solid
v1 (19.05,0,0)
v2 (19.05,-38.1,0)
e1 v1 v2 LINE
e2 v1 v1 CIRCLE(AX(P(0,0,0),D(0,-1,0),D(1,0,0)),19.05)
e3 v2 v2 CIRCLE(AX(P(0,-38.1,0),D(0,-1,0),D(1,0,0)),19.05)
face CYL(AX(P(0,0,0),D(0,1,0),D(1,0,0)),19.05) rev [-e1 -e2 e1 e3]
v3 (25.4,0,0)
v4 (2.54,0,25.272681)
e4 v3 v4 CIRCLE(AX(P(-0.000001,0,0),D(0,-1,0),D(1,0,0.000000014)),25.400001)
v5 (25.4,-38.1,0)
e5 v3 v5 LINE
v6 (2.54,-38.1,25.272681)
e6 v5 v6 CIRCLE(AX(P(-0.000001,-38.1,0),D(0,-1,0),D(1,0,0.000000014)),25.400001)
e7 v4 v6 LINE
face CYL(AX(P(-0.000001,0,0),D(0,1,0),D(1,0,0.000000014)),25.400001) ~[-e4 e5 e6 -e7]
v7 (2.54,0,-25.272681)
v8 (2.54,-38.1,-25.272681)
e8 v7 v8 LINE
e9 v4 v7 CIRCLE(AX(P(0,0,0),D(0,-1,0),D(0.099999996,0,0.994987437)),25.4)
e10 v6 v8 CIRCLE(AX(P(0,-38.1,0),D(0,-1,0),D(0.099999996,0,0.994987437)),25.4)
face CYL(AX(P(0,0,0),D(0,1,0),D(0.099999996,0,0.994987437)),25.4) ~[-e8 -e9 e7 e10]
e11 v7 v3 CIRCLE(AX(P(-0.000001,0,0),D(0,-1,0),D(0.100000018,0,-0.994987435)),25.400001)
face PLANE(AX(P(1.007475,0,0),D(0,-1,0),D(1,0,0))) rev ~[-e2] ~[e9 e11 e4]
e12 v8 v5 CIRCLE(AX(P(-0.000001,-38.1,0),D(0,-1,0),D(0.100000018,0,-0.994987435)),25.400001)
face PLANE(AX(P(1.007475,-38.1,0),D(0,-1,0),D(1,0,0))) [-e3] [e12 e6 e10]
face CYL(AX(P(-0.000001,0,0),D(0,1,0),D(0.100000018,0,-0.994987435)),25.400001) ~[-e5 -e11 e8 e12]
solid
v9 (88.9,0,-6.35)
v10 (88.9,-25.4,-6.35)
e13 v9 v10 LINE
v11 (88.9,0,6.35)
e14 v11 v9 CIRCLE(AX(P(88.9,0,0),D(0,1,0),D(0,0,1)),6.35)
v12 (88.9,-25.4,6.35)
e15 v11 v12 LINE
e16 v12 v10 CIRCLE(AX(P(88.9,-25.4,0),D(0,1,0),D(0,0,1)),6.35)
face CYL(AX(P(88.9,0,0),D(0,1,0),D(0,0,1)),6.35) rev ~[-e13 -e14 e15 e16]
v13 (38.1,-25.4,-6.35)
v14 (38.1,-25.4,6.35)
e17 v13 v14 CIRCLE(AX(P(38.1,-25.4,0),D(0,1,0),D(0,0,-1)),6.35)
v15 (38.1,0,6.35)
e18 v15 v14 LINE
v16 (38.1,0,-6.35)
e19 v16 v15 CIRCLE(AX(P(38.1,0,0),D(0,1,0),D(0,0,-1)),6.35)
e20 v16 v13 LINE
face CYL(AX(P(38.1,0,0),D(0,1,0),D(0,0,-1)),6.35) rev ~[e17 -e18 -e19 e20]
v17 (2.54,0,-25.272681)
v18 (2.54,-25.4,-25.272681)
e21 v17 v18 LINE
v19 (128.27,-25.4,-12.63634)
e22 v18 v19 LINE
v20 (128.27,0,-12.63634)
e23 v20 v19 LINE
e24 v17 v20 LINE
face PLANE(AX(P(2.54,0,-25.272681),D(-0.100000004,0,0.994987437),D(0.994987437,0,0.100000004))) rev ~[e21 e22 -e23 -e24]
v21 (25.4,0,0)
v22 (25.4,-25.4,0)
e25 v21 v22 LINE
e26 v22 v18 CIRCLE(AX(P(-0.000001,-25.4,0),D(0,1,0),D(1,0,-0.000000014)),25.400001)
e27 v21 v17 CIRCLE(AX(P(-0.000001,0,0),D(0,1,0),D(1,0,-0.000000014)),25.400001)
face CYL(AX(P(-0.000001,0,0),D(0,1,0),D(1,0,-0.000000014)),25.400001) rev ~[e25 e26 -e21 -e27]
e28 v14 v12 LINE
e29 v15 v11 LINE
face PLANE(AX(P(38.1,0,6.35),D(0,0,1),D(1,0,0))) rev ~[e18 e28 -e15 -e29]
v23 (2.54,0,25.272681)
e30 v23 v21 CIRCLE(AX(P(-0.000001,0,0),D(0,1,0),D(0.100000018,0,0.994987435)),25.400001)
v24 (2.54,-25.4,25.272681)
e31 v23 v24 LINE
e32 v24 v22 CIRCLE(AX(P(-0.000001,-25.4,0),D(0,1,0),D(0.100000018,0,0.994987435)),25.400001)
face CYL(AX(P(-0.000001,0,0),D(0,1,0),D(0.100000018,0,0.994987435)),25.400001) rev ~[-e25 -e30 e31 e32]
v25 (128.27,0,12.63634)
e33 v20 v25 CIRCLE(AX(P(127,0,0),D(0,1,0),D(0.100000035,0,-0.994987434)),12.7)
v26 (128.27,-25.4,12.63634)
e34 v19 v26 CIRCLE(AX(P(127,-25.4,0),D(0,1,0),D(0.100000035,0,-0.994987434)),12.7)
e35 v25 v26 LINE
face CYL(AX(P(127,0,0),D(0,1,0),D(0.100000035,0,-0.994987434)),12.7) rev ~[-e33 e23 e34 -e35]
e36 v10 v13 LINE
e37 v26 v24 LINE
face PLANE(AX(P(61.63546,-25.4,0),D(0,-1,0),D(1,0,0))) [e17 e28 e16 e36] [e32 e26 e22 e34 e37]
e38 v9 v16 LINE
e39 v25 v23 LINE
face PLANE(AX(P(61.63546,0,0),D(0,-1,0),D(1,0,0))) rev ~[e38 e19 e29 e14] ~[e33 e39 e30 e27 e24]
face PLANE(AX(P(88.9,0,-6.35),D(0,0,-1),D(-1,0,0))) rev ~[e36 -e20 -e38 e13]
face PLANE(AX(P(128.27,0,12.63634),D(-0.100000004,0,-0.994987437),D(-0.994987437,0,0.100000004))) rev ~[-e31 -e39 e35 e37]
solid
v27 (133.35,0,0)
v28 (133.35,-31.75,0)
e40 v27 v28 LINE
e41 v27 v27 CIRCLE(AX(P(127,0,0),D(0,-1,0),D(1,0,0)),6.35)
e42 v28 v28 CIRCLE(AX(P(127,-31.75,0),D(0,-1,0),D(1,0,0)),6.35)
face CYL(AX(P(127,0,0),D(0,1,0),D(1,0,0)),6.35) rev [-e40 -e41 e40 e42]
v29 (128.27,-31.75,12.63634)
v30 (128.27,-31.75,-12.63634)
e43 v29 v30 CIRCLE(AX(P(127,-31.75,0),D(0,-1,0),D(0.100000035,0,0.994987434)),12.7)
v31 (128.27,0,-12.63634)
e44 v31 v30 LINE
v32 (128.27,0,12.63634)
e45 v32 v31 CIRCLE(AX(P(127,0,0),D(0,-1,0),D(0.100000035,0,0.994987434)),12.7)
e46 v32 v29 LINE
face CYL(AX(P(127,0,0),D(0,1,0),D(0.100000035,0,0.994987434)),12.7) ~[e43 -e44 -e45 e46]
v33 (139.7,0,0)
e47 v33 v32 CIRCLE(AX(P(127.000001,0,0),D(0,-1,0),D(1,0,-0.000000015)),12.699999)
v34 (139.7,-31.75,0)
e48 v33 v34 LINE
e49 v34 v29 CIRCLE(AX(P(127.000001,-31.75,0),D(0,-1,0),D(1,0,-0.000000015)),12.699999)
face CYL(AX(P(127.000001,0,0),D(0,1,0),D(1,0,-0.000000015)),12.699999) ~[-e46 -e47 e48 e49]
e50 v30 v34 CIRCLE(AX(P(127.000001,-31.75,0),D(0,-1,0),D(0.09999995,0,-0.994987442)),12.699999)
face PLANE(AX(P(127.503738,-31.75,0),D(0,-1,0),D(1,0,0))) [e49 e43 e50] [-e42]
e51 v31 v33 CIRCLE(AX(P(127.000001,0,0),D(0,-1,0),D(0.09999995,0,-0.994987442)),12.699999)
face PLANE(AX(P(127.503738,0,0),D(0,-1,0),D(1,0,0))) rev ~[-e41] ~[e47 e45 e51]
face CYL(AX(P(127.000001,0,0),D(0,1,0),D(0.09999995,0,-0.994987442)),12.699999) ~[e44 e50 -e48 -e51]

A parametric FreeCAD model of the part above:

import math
import FreeCAD as App
import Part
import Sketcher
from FreeCAD import Vector
Q = App.Units.Quantity

doc = App.newDocument("Part")
params = doc.addObject("Spreadsheet::Sheet", "Params")
for row, (alias, value) in enumerate([
    ("sketch1_radius", "1 in"),
    ("sketch1_diameter", "1.5 in"),
    ("pad1_length", "1.5 in"),
    ("sketch2_radius", "1 in"),
    ("sketch2_radius2", "0.5 in"),
    ("sketch2_width", "2 in"),
    ("sketch2_radius3", "0.25 in"),
    ("pad2_length", "1 in"),
    ("sketch3_diameter", "0.5 in"),
    ("sketch3_radius", "0.5 in"),
    ("pad3_length", "1.25 in"),
], start=1):
    params.set(f"A{row}", alias)
    params.set(f"B{row}", "=" + value)
    params.setAlias(f"B{row}", alias)

body = doc.addObject("PartDesign::Body", "Body")

# Sketch on XZ plane
sketch1 = doc.addObject("Sketcher::SketchObject", "Sketch")
body.addObject(sketch1)
sketch1.AttachmentSupport = (doc.XZ_Plane, [""])
sketch1.MapMode = "FlatFace"
sketch1.addGeometry([
    Part.ArcOfCircle(Part.Circle(Vector(0, 0, 0), Vector(0, 0, 1), 25), math.radians(-84), math.radians(0)),
    Part.ArcOfCircle(Part.Circle(Vector(0, 0, 0), Vector(0, 0, 1), 25), math.radians(0), math.radians(84)),
    Part.ArcOfCircle(Part.Circle(Vector(0, 0, 0), Vector(0, 0, 1), 25), math.radians(84), math.radians(276)),
    Part.Circle(Vector(0, 0, 0), Vector(0, 0, 1), 19),
], False)
sketch1.addConstraint([
    Sketcher.Constraint("Tangent", 0, 2, 1, 1),
    Sketcher.Constraint("Tangent", 1, 2, 2, 1),
    Sketcher.Constraint("Tangent", 2, 2, 0, 1),
    Sketcher.Constraint("Coincident", 0, 3, -1, 1),
    Sketcher.Constraint("Coincident", 3, 3, -1, 1),
    Sketcher.Constraint("PointOnObject", 0, 2, -1),
    Sketcher.Constraint("Vertical", 1, 2, 2, 2),
    Sketcher.Constraint("Radius", 0, Q("1 in")),
    Sketcher.Constraint("Diameter", 3, Q("1.5 in")),
    Sketcher.Constraint("DistanceX", -1, 1, 1, 2, Q("0.1 in")),
])
sketch1.setExpression("Constraints[7]", "Params.sketch1_radius")
sketch1.setExpression("Constraints[8]", "Params.sketch1_diameter")
pad1 = doc.addObject("PartDesign::Pad", "Pad")
body.addObject(pad1)
pad1.Profile = sketch1
pad1.setExpression("Length", "Params.pad1_length")
body2 = doc.addObject("PartDesign::Body", "Body001")

# Sketch on XZ plane
sketch2 = doc.addObject("Sketcher::SketchObject", "Sketch001")
body2.addObject(sketch2)
sketch2.AttachmentSupport = (doc.getObject("XZ_Plane001"), [""])
sketch2.MapMode = "FlatFace"
sketch2.addGeometry([
    Part.ArcOfCircle(Part.Circle(Vector(0, 0, 0), Vector(0, 0, 1), 25), math.radians(0), math.radians(84)),  # 0
    Part.ArcOfCircle(Part.Circle(Vector(0, 0, 0), Vector(0, 0, 1), 25), math.radians(-84), math.radians(0)),  # 1
    Part.LineSegment(Vector(3, -25, 0), Vector(128, -13, 0)),  # 2
    Part.ArcOfCircle(Part.Circle(Vector(127, 0, 0), Vector(0, 0, 1), 13), math.radians(84), math.radians(276)),  # 3
    Part.LineSegment(Vector(128, 13, 0), Vector(3, 25, 0)),  # 4
    Part.LineSegment(Vector(38, 6, 0), Vector(89, 6, 0)),  # 5
    Part.ArcOfCircle(Part.Circle(Vector(89, 0, 0), Vector(0, 0, 1), 6), math.radians(-90), math.radians(90)),  # 6
    Part.LineSegment(Vector(89, -6, 0), Vector(38, -6, 0)),  # 7
    Part.ArcOfCircle(Part.Circle(Vector(38, 0, 0), Vector(0, 0, 1), 6), math.radians(90), math.radians(270)),  # 8
], False)
sketch2.addConstraint([
    Sketcher.Constraint("Tangent", 0, 1, 1, 2),
    Sketcher.Constraint("Tangent", 1, 1, 2, 1),
    Sketcher.Constraint("Tangent", 2, 2, 3, 2),
    Sketcher.Constraint("Tangent", 3, 1, 4, 1),
    Sketcher.Constraint("Tangent", 4, 2, 0, 2),
    Sketcher.Constraint("Tangent", 5, 2, 6, 2),
    Sketcher.Constraint("Tangent", 6, 1, 7, 1),
    Sketcher.Constraint("Tangent", 7, 2, 8, 2),
    Sketcher.Constraint("Tangent", 8, 1, 5, 1),
    Sketcher.Constraint("Horizontal", 5),
    Sketcher.Constraint("Horizontal", 7),
    Sketcher.Constraint("Coincident", 0, 3, -1, 1),
    Sketcher.Constraint("Equal", 0, 1),
    Sketcher.Constraint("PointOnObject", 3, 3, -1),
    Sketcher.Constraint("PointOnObject", 6, 3, -1),
    Sketcher.Constraint("PointOnObject", 0, 1, -1),
    Sketcher.Constraint("Radius", 0, Q("1 in")),
    Sketcher.Constraint("Radius", 3, Q("0.5 in")),
    Sketcher.Constraint("DistanceX", 5, 1, 5, 2, Q("2 in")),
    Sketcher.Constraint("Radius", 6, Q("0.25 in")),
    Sketcher.Constraint("DistanceX", -1, 1, 3, 3, Q("5 in")),
    Sketcher.Constraint("DistanceX", -1, 1, 6, 3, Q("3.5 in")),
])
sketch2.setExpression("Constraints[16]", "Params.sketch2_radius")
sketch2.setExpression("Constraints[17]", "Params.sketch2_radius2")
sketch2.setExpression("Constraints[18]", "Params.sketch2_width")
sketch2.setExpression("Constraints[19]", "Params.sketch2_radius3")
pad2 = doc.addObject("PartDesign::Pad", "Pad001")
body2.addObject(pad2)
pad2.Profile = sketch2
pad2.setExpression("Length", "Params.pad2_length")
body3 = doc.addObject("PartDesign::Body", "Body002")

# Sketch on XZ plane
sketch3 = doc.addObject("Sketcher::SketchObject", "Sketch002")
body3.addObject(sketch3)
sketch3.AttachmentSupport = (doc.getObject("XZ_Plane002"), [""])
sketch3.MapMode = "FlatFace"
sketch3.addGeometry([
    Part.ArcOfCircle(Part.Circle(Vector(127, 0, 0), Vector(0, 0, 1), 13), math.radians(0), math.radians(84)),
    Part.ArcOfCircle(Part.Circle(Vector(127, 0, 0), Vector(0, 0, 1), 13), math.radians(84), math.radians(276)),
    Part.ArcOfCircle(Part.Circle(Vector(127, 0, 0), Vector(0, 0, 1), 13), math.radians(-84), math.radians(0)),
    Part.Circle(Vector(127, 0, 0), Vector(0, 0, 1), 6),
], False)
sketch3.addConstraint([
    Sketcher.Constraint("Tangent", 0, 2, 1, 1),
    Sketcher.Constraint("Tangent", 1, 2, 2, 1),
    Sketcher.Constraint("Tangent", 2, 2, 0, 1),
    Sketcher.Constraint("Coincident", 3, 3, 0, 3),
    Sketcher.Constraint("Symmetric", 0, 2, 1, 2, -1),
    Sketcher.Constraint("PointOnObject", 2, 2, -1),
    Sketcher.Constraint("Diameter", 3, Q("0.5 in")),
    Sketcher.Constraint("Radius", 0, Q("0.5 in")),
    Sketcher.Constraint("DistanceX", -1, 1, 0, 3, Q("5 in")),
    Sketcher.Constraint("DistanceX", -1, 1, 0, 2, Q("5.05 in")),
])
sketch3.setExpression("Constraints[6]", "Params.sketch3_diameter")
sketch3.setExpression("Constraints[7]", "Params.sketch3_radius")
pad3 = doc.addObject("PartDesign::Pad", "Pad002")
body3.addObject(pad3)
pad3.Profile = sketch3
pad3.setExpression("Length", "Params.pad3_length")

doc.recompute()
